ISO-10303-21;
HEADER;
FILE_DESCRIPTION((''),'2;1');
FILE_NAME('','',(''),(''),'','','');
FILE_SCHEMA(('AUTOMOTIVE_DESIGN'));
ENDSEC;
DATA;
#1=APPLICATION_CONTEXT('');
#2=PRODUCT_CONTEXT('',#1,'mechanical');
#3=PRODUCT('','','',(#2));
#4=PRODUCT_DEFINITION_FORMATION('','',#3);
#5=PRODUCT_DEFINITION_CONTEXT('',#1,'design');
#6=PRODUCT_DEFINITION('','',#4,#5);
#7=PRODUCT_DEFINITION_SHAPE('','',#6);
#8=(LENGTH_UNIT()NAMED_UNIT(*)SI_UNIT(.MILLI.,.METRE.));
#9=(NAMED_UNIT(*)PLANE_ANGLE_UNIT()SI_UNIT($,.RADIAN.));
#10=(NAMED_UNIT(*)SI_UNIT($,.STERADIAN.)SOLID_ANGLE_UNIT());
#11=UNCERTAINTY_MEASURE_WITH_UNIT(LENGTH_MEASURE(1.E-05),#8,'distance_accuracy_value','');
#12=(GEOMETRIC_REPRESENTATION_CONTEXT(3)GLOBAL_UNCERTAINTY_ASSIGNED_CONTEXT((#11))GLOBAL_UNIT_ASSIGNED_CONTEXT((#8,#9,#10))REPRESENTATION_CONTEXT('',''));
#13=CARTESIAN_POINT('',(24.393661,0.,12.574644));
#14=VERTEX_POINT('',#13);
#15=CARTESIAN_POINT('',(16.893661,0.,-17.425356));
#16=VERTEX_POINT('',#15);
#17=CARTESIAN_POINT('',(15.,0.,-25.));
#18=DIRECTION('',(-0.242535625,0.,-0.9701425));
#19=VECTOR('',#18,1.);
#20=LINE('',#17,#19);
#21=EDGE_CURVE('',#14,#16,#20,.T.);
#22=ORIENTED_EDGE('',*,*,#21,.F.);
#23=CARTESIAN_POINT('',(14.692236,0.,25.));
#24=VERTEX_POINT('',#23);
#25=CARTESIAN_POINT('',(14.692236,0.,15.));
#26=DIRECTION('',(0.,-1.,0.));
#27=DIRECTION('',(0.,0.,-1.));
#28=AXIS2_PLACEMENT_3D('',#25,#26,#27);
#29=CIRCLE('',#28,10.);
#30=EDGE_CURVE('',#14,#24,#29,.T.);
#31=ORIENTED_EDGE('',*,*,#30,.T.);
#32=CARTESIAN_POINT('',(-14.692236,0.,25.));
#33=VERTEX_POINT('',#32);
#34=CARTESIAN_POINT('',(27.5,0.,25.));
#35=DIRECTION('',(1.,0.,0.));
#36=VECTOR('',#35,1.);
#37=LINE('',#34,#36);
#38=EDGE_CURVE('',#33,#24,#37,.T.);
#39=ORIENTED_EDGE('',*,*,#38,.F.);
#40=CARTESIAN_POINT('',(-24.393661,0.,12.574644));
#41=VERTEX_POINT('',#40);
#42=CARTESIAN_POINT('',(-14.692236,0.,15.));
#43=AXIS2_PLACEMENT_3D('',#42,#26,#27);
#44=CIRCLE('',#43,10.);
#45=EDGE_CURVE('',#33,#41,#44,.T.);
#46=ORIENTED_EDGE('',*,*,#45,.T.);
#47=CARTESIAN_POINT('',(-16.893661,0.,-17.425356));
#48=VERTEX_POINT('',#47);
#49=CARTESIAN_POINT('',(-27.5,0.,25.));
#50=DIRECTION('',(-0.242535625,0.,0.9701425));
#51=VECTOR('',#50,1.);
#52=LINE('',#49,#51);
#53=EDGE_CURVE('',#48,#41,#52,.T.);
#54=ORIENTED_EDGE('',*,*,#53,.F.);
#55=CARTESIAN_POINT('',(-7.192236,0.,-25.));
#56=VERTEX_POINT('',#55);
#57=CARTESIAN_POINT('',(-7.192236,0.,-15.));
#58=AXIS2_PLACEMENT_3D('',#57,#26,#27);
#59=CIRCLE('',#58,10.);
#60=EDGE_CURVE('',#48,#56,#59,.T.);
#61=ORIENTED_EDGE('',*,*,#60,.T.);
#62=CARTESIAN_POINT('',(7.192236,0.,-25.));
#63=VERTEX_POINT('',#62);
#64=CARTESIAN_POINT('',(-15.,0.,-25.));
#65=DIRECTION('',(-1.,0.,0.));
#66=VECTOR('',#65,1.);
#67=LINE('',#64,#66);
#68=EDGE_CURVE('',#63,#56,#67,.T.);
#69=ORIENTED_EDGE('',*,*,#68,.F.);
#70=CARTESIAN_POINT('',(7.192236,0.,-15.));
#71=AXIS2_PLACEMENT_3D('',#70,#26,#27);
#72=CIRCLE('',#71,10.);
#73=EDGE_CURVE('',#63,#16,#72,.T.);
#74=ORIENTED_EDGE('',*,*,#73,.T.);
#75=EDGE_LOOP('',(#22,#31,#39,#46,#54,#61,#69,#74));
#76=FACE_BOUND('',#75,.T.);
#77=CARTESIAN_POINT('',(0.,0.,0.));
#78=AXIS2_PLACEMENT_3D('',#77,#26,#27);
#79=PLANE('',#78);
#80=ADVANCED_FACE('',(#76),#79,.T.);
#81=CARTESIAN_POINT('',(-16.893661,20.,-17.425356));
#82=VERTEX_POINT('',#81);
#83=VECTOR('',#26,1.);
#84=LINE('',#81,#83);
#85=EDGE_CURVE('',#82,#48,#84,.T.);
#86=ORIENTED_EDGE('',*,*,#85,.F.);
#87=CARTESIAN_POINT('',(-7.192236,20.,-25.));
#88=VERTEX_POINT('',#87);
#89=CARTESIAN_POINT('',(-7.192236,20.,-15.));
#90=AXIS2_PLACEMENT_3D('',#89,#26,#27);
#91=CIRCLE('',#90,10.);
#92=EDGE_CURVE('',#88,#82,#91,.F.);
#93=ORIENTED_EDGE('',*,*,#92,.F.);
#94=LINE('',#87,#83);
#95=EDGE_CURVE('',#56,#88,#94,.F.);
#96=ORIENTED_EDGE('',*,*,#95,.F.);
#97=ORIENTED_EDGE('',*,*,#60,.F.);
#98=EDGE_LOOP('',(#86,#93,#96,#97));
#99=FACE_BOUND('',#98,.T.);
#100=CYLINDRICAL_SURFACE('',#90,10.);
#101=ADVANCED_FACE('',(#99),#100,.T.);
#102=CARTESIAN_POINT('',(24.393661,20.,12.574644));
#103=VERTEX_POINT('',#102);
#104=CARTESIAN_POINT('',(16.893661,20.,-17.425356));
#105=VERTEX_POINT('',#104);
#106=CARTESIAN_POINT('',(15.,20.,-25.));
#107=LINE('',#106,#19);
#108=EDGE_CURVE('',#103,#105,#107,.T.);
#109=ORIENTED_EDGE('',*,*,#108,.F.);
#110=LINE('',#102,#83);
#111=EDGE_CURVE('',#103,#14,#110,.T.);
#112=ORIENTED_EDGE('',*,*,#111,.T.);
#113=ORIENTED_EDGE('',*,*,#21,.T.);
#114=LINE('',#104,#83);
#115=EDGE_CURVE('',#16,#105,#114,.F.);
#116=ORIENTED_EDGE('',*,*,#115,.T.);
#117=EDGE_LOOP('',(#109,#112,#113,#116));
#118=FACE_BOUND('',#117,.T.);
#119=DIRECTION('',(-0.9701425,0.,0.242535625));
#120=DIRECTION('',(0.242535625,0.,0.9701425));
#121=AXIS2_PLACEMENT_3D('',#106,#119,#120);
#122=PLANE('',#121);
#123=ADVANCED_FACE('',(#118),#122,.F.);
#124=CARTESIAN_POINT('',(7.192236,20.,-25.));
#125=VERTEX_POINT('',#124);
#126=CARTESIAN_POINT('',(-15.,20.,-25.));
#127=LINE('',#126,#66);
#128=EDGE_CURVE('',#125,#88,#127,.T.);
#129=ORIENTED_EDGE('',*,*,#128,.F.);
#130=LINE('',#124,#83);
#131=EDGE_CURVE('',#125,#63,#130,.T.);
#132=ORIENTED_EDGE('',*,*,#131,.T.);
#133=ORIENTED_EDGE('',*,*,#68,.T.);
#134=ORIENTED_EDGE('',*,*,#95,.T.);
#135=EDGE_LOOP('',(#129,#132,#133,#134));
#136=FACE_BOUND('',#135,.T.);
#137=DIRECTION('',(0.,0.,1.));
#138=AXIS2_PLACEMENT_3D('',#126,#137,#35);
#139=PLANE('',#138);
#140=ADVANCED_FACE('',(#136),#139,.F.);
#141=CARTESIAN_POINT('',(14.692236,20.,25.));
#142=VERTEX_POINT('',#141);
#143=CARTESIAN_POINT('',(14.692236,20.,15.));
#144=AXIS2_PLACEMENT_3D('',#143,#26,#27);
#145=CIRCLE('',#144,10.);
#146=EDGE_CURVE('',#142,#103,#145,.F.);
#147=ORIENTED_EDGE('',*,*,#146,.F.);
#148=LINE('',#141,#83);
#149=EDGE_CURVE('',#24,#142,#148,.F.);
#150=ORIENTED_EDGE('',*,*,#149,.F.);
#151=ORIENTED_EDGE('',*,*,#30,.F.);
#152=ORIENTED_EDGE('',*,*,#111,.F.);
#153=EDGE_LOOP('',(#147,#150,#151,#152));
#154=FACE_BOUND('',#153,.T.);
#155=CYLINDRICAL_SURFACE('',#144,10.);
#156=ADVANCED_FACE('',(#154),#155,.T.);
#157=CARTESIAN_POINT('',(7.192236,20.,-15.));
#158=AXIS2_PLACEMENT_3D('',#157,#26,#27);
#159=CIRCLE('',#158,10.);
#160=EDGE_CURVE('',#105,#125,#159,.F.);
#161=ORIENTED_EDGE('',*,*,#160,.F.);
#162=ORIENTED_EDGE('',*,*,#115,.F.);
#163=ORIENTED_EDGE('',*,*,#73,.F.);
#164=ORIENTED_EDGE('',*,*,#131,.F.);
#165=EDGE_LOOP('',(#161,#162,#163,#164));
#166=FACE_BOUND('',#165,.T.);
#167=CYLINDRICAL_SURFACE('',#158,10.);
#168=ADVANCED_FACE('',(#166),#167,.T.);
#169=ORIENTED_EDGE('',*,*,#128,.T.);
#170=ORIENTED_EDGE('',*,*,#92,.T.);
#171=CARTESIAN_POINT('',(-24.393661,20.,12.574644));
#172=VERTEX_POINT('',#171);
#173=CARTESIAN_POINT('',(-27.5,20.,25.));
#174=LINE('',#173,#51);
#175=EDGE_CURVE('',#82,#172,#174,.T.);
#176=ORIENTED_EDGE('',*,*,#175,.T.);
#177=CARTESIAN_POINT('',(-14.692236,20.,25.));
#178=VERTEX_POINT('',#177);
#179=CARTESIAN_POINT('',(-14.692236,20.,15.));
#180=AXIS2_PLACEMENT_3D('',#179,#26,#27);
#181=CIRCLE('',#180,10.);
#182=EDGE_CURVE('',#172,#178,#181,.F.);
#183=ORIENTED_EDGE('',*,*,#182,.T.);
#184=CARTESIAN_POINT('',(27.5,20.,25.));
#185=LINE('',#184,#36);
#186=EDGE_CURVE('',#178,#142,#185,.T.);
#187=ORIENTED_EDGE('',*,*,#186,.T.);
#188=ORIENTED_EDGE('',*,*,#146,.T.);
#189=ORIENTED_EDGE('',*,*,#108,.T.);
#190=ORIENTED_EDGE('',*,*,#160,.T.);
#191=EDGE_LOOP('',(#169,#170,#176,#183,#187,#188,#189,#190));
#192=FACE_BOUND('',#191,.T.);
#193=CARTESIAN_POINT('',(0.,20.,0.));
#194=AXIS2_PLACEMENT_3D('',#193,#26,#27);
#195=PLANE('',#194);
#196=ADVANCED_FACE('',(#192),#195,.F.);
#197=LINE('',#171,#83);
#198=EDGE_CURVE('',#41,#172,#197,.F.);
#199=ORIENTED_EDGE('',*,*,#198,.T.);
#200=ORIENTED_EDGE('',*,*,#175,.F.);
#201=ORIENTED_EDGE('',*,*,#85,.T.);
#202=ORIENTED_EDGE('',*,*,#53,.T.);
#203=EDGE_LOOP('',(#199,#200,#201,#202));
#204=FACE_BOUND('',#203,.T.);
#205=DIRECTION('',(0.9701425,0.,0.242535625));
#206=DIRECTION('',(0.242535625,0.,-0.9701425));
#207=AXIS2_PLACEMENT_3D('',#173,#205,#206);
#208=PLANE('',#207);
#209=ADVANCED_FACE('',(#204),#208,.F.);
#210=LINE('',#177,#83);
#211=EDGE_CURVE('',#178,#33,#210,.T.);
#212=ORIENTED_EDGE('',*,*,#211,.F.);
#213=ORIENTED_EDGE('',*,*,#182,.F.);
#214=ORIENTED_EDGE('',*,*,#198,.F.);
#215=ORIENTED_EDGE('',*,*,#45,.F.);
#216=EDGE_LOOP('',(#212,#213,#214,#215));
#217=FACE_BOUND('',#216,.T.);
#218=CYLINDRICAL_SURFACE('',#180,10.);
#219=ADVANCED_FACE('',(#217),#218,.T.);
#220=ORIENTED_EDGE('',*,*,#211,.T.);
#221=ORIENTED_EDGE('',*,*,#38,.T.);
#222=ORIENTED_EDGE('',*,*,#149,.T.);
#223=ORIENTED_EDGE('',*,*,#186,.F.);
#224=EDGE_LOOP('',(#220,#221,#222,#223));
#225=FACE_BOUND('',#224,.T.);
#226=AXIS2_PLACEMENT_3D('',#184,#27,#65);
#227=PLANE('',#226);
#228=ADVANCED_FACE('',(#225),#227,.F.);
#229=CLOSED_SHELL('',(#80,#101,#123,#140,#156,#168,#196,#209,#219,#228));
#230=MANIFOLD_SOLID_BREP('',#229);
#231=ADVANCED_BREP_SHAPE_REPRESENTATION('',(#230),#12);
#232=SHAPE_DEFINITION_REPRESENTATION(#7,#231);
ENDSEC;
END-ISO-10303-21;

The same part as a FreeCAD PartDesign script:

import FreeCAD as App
import Part
import Sketcher

V = App.Vector
Q = App.Units.Quantity


def edges_at(feature, points):
    """Names of the edges that pass closest to the given points."""
    edges = feature.Shape.Edges
    near = lambda p: min(range(len(edges)), key=lambda i: edges[i].distToShape(Part.Vertex(*p))[0])
    return sorted({f"Edge{near(p) + 1}" for p in points})

doc = App.newDocument("Part")
body = doc.addObject("PartDesign::Body", "Body")

# Sketch on XZ plane
sketch1 = body.newObject("Sketcher::SketchObject", "Sketch")
sketch1.AttachmentSupport = (doc.getObject("XZ_Plane"), [""])
sketch1.MapMode = "FlatFace"
sketch1.addGeometry([
    Part.LineSegment(V(15, -25, 0), V(-15, -25, 0)),
    Part.LineSegment(V(-15, -25, 0), V(-28, 25, 0)),
    Part.LineSegment(V(-28, 25, 0), V(28, 25, 0)),
    Part.LineSegment(V(28, 25, 0), V(15, -25, 0)),
], False)
sketch1.addConstraint([
    Sketcher.Constraint("Coincident", 0, 2, 1, 1),
    Sketcher.Constraint("Coincident", 1, 2, 2, 1),
    Sketcher.Constraint("Coincident", 2, 2, 3, 1),
    Sketcher.Constraint("Coincident", 3, 2, 0, 1),
    Sketcher.Constraint("Horizontal", 0),
    Sketcher.Constraint("Horizontal", 2),
    Sketcher.Constraint("Equal", 1, 3),
    Sketcher.Constraint("DistanceX", 0, 2, 0, 1, Q("30 mm")),
    Sketcher.Constraint("DistanceX", 2, 1, 2, 2, Q("55 mm")),
    Sketcher.Constraint("DistanceX", 0, 2, -1, 1, Q("15 mm")),
    Sketcher.Constraint("DistanceY", 0, 2, -1, 1, Q("25 mm")),
    Sketcher.Constraint("DistanceY", -1, 1, 1, 2, Q("25 mm")),
])
pad1 = body.newObject("PartDesign::Pad", "Pad")
pad1.Profile = sketch1
pad1.Length = 20
pad1.Reversed = True
doc.recompute()

fillet = body.newObject("PartDesign::Fillet", "Fillet")
fillet.Base = (pad1, edges_at(pad1, [
    (-15, 10, -25),
    (15, 10, -25),
    (27.5, 10, 25),
    (-27.5, 10, 25),
]))
fillet.Radius = 10

doc.recompute()
